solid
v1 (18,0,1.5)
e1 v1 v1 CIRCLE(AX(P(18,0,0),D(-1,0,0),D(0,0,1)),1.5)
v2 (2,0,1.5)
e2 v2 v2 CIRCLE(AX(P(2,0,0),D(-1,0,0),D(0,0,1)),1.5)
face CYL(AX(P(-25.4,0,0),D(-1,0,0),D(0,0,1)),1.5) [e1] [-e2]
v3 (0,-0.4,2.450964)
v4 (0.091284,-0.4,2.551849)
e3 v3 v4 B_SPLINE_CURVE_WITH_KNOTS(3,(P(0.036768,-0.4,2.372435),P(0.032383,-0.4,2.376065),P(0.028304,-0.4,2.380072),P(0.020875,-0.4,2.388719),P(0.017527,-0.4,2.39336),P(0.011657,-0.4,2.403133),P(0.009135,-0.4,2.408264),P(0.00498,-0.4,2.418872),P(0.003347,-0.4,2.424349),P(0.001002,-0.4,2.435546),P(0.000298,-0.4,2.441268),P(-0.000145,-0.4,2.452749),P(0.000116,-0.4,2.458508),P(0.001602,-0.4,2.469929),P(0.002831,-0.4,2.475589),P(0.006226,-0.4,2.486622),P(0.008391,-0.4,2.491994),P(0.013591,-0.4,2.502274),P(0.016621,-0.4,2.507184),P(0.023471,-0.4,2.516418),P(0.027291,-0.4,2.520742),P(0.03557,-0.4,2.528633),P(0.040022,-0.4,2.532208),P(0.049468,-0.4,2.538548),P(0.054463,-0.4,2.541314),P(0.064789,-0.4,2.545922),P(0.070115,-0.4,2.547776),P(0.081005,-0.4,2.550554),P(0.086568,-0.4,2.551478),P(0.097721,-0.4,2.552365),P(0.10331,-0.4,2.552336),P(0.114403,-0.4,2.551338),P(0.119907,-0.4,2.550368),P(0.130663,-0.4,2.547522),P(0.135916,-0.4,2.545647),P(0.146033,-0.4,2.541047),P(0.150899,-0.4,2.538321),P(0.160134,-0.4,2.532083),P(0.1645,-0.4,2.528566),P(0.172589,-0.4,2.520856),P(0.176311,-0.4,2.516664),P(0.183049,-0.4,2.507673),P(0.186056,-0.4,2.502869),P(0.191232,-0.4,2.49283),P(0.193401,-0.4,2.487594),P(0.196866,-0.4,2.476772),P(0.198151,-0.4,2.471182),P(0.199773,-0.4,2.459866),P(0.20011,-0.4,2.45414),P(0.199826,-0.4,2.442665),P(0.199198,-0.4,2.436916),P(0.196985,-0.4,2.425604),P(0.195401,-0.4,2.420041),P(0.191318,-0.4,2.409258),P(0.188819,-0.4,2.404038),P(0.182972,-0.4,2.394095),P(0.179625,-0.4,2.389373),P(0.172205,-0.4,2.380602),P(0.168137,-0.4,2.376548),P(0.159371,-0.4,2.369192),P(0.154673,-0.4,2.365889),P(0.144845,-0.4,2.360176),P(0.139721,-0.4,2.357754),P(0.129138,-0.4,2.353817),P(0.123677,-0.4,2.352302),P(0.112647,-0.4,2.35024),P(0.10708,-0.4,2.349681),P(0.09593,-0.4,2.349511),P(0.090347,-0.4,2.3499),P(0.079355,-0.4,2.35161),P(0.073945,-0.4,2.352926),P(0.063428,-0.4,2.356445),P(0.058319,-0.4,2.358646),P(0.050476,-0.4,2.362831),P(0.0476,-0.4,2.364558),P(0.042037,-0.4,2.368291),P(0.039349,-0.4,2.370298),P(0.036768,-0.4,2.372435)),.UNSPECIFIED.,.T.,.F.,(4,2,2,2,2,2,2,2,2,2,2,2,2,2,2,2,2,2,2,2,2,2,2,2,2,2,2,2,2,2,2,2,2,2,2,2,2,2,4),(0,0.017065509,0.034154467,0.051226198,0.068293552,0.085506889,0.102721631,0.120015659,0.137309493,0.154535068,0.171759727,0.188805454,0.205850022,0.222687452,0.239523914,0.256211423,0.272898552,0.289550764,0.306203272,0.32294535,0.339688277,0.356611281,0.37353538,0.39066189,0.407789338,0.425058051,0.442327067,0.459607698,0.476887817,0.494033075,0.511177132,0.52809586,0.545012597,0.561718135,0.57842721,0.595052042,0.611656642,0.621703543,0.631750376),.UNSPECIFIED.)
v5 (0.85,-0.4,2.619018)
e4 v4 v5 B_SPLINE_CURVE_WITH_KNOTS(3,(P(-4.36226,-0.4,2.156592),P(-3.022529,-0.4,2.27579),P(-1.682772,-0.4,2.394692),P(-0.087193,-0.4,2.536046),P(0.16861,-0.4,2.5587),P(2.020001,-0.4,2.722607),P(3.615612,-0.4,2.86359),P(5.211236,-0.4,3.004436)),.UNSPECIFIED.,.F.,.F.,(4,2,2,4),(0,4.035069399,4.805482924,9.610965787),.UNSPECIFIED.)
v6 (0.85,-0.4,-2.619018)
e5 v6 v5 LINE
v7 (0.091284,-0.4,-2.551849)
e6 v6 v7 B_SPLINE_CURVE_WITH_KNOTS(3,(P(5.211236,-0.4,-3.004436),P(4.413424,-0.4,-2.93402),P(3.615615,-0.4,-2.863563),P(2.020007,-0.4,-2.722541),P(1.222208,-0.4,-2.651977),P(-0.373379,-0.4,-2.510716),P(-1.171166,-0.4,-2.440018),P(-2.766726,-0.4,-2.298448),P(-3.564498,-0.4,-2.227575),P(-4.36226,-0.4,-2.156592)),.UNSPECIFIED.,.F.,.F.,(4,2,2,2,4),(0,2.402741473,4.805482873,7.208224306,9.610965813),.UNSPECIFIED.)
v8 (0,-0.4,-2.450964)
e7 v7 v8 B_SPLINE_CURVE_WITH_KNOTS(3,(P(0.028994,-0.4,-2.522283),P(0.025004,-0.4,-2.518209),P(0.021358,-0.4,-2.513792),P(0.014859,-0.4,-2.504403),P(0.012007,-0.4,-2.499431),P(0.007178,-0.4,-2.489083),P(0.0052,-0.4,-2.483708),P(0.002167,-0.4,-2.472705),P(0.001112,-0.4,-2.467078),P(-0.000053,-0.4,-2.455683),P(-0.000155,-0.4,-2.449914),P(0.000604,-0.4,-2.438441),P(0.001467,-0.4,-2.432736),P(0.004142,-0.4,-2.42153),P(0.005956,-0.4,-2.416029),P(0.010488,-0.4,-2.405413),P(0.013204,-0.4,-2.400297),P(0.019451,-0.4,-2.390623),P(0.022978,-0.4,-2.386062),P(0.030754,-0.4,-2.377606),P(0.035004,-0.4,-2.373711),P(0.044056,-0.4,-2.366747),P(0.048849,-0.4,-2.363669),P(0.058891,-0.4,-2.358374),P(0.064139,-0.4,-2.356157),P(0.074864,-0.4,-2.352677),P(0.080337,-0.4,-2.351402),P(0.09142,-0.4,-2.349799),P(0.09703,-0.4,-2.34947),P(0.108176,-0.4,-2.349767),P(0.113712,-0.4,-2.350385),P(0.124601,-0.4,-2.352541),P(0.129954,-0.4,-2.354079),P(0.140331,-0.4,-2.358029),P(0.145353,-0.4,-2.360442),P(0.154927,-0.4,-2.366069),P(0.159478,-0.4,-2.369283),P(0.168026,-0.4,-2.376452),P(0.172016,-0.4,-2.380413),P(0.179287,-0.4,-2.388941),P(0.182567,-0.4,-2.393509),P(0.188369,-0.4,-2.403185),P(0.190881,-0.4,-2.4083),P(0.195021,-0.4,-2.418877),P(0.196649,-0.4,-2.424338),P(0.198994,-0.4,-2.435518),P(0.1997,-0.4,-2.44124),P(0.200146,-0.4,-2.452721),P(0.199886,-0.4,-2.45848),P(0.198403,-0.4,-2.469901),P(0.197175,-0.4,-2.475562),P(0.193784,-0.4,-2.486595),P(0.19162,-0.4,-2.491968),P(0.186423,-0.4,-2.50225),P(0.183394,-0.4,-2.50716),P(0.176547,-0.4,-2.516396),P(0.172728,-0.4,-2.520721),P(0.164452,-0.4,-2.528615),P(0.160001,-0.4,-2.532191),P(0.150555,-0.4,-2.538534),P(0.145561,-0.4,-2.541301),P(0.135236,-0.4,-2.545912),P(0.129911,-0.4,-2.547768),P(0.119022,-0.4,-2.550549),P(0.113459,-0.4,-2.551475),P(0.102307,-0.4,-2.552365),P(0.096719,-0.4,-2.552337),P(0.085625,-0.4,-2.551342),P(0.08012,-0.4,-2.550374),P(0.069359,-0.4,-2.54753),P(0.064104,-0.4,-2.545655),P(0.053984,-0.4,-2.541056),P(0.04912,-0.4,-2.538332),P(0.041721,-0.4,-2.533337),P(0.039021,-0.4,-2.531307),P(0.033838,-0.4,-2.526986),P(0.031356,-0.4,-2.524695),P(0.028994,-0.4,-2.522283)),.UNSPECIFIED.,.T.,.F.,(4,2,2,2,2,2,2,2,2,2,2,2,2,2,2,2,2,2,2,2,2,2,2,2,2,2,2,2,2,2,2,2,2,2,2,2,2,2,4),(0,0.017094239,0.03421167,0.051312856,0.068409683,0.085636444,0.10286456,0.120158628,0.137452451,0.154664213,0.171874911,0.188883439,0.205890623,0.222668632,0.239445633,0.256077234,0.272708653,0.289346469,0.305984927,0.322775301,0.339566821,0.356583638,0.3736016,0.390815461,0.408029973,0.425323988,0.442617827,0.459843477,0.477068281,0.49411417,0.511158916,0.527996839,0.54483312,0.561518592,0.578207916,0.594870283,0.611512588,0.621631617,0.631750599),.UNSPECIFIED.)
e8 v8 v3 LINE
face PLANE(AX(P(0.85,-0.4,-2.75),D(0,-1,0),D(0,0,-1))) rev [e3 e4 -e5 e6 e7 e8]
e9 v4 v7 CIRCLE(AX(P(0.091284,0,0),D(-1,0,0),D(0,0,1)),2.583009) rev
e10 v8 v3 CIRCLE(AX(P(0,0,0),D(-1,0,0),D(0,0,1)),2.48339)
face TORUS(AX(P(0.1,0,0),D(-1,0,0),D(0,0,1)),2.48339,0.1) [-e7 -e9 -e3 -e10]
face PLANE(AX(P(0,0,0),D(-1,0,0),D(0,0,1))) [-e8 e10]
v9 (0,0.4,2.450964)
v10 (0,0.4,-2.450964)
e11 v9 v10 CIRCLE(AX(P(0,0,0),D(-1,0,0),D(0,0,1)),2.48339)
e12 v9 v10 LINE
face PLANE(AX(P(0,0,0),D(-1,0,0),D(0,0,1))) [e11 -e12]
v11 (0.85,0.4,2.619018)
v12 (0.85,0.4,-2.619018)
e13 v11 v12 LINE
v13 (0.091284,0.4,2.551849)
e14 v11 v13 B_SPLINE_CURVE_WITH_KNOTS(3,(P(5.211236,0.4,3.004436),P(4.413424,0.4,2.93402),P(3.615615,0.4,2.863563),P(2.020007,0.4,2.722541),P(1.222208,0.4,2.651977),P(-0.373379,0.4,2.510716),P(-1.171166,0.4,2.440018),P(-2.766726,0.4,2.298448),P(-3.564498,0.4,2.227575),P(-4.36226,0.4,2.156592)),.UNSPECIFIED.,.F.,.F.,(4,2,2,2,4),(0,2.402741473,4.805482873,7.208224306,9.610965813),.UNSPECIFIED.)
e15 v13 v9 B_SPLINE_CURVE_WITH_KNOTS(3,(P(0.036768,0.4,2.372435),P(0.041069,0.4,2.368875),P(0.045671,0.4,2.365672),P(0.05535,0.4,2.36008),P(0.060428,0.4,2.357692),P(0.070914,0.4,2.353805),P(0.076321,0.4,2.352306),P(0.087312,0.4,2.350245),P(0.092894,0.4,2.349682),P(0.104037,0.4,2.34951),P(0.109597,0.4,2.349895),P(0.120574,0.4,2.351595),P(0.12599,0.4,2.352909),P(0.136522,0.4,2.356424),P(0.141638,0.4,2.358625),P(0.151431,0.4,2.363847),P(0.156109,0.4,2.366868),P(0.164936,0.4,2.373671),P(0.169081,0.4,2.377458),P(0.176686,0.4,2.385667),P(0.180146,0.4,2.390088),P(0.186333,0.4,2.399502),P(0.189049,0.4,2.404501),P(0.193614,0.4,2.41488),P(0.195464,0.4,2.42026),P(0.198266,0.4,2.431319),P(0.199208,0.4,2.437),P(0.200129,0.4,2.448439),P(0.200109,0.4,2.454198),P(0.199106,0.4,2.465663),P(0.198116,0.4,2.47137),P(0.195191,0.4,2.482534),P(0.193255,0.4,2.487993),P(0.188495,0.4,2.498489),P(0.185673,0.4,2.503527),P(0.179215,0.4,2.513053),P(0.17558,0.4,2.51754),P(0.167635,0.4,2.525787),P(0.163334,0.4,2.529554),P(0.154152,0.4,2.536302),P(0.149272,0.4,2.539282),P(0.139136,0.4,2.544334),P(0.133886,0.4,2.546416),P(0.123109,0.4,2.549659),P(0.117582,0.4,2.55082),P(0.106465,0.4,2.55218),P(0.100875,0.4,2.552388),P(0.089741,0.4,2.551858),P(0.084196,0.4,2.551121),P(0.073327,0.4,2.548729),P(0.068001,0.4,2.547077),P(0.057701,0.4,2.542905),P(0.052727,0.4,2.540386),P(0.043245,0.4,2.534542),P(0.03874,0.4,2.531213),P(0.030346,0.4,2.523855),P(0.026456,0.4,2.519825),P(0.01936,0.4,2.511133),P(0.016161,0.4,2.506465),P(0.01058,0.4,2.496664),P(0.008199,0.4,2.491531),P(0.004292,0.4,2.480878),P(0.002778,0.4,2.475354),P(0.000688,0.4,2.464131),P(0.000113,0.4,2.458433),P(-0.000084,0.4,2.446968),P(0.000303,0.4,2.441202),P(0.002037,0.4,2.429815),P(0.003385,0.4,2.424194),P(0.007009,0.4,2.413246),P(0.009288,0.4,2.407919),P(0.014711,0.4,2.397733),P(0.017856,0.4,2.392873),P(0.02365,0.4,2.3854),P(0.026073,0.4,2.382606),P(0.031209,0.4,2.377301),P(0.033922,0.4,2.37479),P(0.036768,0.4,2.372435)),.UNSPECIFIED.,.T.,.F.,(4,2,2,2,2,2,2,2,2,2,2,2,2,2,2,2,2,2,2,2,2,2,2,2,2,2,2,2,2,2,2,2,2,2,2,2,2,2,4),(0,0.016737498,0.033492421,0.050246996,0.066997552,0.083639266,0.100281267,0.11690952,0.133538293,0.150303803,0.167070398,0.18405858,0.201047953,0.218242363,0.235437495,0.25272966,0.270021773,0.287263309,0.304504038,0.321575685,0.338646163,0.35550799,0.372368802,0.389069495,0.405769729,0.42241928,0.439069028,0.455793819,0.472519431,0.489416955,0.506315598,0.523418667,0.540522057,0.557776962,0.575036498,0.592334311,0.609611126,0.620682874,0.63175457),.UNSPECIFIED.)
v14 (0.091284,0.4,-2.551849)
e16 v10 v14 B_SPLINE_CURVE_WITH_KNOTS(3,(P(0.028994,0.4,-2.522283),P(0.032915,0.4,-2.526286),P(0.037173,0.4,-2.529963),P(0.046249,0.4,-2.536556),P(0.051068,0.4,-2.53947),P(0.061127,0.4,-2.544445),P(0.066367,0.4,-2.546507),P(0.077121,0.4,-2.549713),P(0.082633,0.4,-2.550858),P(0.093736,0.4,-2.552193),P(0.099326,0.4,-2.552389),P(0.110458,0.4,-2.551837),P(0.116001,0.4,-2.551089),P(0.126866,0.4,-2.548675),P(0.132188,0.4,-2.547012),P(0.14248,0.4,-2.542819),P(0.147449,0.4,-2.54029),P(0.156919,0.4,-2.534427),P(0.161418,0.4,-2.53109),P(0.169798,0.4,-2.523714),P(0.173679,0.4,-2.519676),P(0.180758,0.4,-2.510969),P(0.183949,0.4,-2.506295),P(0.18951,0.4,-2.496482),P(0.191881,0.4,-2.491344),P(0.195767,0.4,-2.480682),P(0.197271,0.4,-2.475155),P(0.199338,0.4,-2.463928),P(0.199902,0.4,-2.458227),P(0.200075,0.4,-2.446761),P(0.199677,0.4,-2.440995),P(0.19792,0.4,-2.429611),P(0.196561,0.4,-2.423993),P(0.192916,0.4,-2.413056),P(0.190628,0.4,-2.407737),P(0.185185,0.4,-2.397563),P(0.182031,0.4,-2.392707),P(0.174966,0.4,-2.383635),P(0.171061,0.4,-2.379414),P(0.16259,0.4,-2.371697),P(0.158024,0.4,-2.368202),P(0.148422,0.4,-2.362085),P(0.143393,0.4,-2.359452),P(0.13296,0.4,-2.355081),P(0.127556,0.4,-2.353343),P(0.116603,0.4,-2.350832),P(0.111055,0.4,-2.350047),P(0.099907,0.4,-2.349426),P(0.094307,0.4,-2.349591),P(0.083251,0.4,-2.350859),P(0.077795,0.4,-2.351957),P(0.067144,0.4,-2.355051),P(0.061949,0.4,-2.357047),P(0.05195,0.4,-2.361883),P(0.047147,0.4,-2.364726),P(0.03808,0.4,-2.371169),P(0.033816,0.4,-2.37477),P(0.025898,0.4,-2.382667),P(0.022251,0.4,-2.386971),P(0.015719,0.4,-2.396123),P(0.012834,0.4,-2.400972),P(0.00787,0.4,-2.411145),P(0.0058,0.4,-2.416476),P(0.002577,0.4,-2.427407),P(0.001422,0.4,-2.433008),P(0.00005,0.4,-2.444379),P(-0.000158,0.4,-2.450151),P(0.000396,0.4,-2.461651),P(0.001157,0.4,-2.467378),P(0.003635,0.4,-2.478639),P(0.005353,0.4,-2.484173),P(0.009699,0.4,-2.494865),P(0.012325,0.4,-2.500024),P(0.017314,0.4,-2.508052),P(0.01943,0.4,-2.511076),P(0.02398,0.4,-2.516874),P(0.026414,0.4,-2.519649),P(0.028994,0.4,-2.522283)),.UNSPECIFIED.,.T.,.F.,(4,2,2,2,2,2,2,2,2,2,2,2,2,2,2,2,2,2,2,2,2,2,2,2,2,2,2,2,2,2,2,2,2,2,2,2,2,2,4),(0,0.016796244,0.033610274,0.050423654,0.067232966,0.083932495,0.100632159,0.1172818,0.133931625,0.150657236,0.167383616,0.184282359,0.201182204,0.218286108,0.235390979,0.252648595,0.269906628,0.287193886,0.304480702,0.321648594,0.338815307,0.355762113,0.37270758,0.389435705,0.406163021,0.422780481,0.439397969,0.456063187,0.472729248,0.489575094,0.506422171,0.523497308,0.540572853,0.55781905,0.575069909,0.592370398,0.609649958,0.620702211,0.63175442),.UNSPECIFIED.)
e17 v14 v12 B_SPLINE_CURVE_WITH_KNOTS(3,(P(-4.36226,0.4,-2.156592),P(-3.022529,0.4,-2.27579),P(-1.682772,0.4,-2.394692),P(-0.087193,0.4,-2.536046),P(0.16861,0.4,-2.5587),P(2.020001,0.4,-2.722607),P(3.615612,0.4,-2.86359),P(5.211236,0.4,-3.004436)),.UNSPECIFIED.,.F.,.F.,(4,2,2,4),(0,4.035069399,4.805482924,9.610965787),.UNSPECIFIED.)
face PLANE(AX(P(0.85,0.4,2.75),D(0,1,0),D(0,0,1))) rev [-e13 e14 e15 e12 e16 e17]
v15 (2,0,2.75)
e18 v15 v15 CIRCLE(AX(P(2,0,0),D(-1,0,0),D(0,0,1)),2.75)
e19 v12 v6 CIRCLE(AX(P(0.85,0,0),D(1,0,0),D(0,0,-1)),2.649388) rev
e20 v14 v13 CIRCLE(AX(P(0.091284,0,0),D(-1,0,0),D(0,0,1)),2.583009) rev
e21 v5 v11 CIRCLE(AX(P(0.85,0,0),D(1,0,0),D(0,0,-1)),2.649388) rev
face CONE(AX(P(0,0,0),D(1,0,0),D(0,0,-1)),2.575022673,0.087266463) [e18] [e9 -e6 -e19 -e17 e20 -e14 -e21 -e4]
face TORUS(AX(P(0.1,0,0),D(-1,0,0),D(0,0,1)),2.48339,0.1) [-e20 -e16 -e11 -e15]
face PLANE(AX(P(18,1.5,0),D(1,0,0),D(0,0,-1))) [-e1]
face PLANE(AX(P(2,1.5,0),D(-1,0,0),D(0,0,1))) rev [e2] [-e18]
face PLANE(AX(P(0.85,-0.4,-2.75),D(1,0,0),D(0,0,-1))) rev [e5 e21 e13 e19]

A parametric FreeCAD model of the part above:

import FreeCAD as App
import Part
import Sketcher
Q = App.Units.Quantity


def edges_at(feature, points):
    """Names of the edges that pass closest to the given points."""
    edges = feature.Shape.Edges
    near = lambda p: min(range(len(edges)), key=lambda i: edges[i].distToShape(Part.Vertex(*p))[0])
    return sorted({f"Edge{near(p) + 1}" for p in points})


def add_polygon(sketch, points):
    """Adds a closed chain of lines whose ends are joined by coincident constraints."""
    first, n = sketch.GeometryCount, len(points)
    for a, b in zip(points, points[1:] + points[:1]):
        sketch.addGeometry(Part.LineSegment(App.Vector(*a, 0), App.Vector(*b, 0)), False)
    for i in range(n):
        sketch.addConstraint(Sketcher.Constraint("Coincident", first + i, 2, first + (i + 1) % n, 1))

doc = App.newDocument("Part")
body = doc.addObject("PartDesign::Body", "Body")

# Sketch on XY plane
sketch1 = doc.addObject("Sketcher::SketchObject", "Sketch")
body.addObject(sketch1)
sketch1.AttachmentSupport = (doc.XY_Plane, [""])
sketch1.MapMode = "FlatFace"
add_polygon(sketch1, [(2, 1.5), (2, 2.8), (0, 2.6), (0, 0), (18, 0), (18, 1.5)])  # lines 0-5
sketch1.addConstraint([
    Sketcher.Constraint("Vertical", 0),
    Sketcher.Constraint("Vertical", 2),
    Sketcher.Constraint("Horizontal", 3),
    Sketcher.Constraint("Vertical", 4),
    Sketcher.Constraint("Horizontal", 5),
    Sketcher.Constraint("Coincident", 2, 2, -1, 1),
    Sketcher.Constraint("DistanceX", 3, 1, 3, 2, 18.0),
    Sketcher.Constraint("DistanceX", 5, 2, 5, 1, 16.0),
    Sketcher.Constraint("Angle", 1, Q("-175 deg")),
    Sketcher.Constraint("DistanceY", 4, 1, 4, 2, 1.5),
    Sketcher.Constraint("DistanceY", 0, 1, 0, 2, 1.25),
])
revolution = doc.addObject("PartDesign::Revolution", "Revolution")
body.addObject(revolution)
revolution.Profile = sketch1
revolution.ReferenceAxis = (sketch1, ["H_Axis"])
revolution.Angle = 360
doc.recompute()

fillet = doc.addObject("PartDesign::Fillet", "Fillet")
body.addObject(fillet)
fillet.Base = (revolution, edges_at(revolution, [(0, -2.575, 0)]))
fillet.Radius = 0.1

# Sketch on YZ plane
sketch2 = doc.addObject("Sketcher::SketchObject", "Sketch001")
body.addObject(sketch2)
sketch2.AttachmentSupport = (doc.YZ_Plane, [""])
sketch2.MapMode = "FlatFace"
add_polygon(sketch2, [(0.4, 2.8), (-0.4, 2.8), (-0.4, -2.8), (0.4, -2.8)])  # lines 0-3
sketch2.addConstraint([
    Sketcher.Constraint("Horizontal", 0),
    Sketcher.Constraint("Vertical", 1),
    Sketcher.Constraint("Horizontal", 2),
    Sketcher.Constraint("Vertical", 3),
    Sketcher.Constraint("Symmetric", 0, 2, 2, 2, -1, 1),
    Sketcher.Constraint("DistanceX", 0, 2, 0, 1, 0.8),
    Sketcher.Constraint("DistanceY", 1, 2, 1, 1, 5.5),
])
pocket1 = doc.addObject("PartDesign::Pocket", "Pocket")
body.addObject(pocket1)
pocket1.Profile = sketch2
pocket1.Length = 0.85
pocket1.Reversed = True

doc.recompute()
